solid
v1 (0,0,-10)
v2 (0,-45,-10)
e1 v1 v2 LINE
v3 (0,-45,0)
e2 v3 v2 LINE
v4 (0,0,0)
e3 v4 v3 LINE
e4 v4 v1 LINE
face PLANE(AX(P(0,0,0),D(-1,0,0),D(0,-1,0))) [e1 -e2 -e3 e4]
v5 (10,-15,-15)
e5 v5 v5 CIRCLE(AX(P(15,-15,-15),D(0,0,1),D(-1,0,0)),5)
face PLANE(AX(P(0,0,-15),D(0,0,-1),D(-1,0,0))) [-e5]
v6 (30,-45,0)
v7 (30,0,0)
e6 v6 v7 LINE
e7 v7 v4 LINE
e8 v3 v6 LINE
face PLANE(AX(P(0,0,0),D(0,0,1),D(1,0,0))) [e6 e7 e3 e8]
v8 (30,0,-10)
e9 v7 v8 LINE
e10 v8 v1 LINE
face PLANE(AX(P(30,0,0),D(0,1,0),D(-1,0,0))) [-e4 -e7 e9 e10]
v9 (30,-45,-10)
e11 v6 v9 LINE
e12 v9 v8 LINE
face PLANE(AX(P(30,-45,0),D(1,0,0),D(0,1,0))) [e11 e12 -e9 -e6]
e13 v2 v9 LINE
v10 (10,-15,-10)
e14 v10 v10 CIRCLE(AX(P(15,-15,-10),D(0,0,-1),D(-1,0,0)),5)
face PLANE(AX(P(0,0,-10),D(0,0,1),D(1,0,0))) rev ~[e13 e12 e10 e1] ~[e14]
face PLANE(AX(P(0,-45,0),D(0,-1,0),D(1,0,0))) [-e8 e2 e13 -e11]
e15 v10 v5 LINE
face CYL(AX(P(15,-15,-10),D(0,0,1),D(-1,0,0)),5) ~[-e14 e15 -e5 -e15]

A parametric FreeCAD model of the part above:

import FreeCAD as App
import Part
import Sketcher

V = App.Vector


def add_polygon(sketch, points):
    """Adds a closed chain of lines whose ends are joined by coincident constraints."""
    first, n = sketch.GeometryCount, len(points)
    for a, b in zip(points, points[1:] + points[:1]):
        sketch.addGeometry(Part.LineSegment(App.Vector(*a, 0), App.Vector(*b, 0)), False)
    for i in range(n):
        sketch.addConstraint(Sketcher.Constraint("Coincident", first + i, 2, first + (i + 1) % n, 1))

doc = App.newDocument("Part")
params = doc.addObject("Spreadsheet::Sheet", "Params")
for row, (alias, value) in enumerate([
    ("sketch1_width", "30 mm"),
    ("sketch1_height", "45 mm"),
    ("pad1_length", "10 mm"),
    ("sketch2_diameter", "10 mm"),
    ("pad2_length", "5 mm"),
], start=1):
    params.set(f"A{row}", alias)
    params.set(f"B{row}", "=" + value)
    params.setAlias(f"B{row}", alias)

body = doc.addObject("PartDesign::Body", "Body")

sketch1 = body.newObject("Sketcher::SketchObject", "Sketch")
sketch1.AttachmentSupport = (doc.getObject("XY_Plane"), [""])
sketch1.MapMode = "FlatFace"
add_polygon(sketch1, [(30, 0), (0, 0), (0, -45), (30, -45)])
sketch1.addConstraint([
    Sketcher.Constraint("Horizontal", 0),
    Sketcher.Constraint("Vertical", 1),
    Sketcher.Constraint("Horizontal", 2),
    Sketcher.Constraint("Vertical", 3),
    Sketcher.Constraint("Coincident", 0, 2, -1, 1),
    Sketcher.Constraint("DistanceX", 0, 2, 0, 1, 30.0),
    Sketcher.Constraint("DistanceY", 1, 2, 1, 1, 45.0),
])
sketch1.setExpression("Constraints[9]", "Params.sketch1_width")
sketch1.setExpression("Constraints[10]", "Params.sketch1_height")
pad1 = body.newObject("PartDesign::Pad", "Pad")
pad1.Profile = sketch1
pad1.setExpression("Length", "Params.pad1_length")
pad1.Reversed = True

sketch2 = body.newObject("Sketcher::SketchObject", "Sketch001")
sketch2.AttachmentSupport = (doc.getObject("XY_Plane"), [""])
sketch2.MapMode = "FlatFace"
sketch2.AttachmentOffset = App.Placement(V(0, 0, -10), App.Rotation())
sketch2.addGeometry(Part.Circle(V(15, -15, 0), V(0, 0, 1), 5), False)
sketch2.addConstraint([
    Sketcher.Constraint("Diameter", 0, 10.0),
    Sketcher.Constraint("DistanceX", -1, 1, 0, 3, 15.0),
    Sketcher.Constraint("DistanceY", 0, 3, -1, 1, 15.0),
])
sketch2.setExpression("Constraints[0]", "Params.sketch2_diameter")
pad2 = body.newObject("PartDesign::Pad", "Pad001")
pad2.Profile = sketch2
pad2.setExpression("Length", "Params.pad2_length")
pad2.Reversed = True

doc.recompute()
